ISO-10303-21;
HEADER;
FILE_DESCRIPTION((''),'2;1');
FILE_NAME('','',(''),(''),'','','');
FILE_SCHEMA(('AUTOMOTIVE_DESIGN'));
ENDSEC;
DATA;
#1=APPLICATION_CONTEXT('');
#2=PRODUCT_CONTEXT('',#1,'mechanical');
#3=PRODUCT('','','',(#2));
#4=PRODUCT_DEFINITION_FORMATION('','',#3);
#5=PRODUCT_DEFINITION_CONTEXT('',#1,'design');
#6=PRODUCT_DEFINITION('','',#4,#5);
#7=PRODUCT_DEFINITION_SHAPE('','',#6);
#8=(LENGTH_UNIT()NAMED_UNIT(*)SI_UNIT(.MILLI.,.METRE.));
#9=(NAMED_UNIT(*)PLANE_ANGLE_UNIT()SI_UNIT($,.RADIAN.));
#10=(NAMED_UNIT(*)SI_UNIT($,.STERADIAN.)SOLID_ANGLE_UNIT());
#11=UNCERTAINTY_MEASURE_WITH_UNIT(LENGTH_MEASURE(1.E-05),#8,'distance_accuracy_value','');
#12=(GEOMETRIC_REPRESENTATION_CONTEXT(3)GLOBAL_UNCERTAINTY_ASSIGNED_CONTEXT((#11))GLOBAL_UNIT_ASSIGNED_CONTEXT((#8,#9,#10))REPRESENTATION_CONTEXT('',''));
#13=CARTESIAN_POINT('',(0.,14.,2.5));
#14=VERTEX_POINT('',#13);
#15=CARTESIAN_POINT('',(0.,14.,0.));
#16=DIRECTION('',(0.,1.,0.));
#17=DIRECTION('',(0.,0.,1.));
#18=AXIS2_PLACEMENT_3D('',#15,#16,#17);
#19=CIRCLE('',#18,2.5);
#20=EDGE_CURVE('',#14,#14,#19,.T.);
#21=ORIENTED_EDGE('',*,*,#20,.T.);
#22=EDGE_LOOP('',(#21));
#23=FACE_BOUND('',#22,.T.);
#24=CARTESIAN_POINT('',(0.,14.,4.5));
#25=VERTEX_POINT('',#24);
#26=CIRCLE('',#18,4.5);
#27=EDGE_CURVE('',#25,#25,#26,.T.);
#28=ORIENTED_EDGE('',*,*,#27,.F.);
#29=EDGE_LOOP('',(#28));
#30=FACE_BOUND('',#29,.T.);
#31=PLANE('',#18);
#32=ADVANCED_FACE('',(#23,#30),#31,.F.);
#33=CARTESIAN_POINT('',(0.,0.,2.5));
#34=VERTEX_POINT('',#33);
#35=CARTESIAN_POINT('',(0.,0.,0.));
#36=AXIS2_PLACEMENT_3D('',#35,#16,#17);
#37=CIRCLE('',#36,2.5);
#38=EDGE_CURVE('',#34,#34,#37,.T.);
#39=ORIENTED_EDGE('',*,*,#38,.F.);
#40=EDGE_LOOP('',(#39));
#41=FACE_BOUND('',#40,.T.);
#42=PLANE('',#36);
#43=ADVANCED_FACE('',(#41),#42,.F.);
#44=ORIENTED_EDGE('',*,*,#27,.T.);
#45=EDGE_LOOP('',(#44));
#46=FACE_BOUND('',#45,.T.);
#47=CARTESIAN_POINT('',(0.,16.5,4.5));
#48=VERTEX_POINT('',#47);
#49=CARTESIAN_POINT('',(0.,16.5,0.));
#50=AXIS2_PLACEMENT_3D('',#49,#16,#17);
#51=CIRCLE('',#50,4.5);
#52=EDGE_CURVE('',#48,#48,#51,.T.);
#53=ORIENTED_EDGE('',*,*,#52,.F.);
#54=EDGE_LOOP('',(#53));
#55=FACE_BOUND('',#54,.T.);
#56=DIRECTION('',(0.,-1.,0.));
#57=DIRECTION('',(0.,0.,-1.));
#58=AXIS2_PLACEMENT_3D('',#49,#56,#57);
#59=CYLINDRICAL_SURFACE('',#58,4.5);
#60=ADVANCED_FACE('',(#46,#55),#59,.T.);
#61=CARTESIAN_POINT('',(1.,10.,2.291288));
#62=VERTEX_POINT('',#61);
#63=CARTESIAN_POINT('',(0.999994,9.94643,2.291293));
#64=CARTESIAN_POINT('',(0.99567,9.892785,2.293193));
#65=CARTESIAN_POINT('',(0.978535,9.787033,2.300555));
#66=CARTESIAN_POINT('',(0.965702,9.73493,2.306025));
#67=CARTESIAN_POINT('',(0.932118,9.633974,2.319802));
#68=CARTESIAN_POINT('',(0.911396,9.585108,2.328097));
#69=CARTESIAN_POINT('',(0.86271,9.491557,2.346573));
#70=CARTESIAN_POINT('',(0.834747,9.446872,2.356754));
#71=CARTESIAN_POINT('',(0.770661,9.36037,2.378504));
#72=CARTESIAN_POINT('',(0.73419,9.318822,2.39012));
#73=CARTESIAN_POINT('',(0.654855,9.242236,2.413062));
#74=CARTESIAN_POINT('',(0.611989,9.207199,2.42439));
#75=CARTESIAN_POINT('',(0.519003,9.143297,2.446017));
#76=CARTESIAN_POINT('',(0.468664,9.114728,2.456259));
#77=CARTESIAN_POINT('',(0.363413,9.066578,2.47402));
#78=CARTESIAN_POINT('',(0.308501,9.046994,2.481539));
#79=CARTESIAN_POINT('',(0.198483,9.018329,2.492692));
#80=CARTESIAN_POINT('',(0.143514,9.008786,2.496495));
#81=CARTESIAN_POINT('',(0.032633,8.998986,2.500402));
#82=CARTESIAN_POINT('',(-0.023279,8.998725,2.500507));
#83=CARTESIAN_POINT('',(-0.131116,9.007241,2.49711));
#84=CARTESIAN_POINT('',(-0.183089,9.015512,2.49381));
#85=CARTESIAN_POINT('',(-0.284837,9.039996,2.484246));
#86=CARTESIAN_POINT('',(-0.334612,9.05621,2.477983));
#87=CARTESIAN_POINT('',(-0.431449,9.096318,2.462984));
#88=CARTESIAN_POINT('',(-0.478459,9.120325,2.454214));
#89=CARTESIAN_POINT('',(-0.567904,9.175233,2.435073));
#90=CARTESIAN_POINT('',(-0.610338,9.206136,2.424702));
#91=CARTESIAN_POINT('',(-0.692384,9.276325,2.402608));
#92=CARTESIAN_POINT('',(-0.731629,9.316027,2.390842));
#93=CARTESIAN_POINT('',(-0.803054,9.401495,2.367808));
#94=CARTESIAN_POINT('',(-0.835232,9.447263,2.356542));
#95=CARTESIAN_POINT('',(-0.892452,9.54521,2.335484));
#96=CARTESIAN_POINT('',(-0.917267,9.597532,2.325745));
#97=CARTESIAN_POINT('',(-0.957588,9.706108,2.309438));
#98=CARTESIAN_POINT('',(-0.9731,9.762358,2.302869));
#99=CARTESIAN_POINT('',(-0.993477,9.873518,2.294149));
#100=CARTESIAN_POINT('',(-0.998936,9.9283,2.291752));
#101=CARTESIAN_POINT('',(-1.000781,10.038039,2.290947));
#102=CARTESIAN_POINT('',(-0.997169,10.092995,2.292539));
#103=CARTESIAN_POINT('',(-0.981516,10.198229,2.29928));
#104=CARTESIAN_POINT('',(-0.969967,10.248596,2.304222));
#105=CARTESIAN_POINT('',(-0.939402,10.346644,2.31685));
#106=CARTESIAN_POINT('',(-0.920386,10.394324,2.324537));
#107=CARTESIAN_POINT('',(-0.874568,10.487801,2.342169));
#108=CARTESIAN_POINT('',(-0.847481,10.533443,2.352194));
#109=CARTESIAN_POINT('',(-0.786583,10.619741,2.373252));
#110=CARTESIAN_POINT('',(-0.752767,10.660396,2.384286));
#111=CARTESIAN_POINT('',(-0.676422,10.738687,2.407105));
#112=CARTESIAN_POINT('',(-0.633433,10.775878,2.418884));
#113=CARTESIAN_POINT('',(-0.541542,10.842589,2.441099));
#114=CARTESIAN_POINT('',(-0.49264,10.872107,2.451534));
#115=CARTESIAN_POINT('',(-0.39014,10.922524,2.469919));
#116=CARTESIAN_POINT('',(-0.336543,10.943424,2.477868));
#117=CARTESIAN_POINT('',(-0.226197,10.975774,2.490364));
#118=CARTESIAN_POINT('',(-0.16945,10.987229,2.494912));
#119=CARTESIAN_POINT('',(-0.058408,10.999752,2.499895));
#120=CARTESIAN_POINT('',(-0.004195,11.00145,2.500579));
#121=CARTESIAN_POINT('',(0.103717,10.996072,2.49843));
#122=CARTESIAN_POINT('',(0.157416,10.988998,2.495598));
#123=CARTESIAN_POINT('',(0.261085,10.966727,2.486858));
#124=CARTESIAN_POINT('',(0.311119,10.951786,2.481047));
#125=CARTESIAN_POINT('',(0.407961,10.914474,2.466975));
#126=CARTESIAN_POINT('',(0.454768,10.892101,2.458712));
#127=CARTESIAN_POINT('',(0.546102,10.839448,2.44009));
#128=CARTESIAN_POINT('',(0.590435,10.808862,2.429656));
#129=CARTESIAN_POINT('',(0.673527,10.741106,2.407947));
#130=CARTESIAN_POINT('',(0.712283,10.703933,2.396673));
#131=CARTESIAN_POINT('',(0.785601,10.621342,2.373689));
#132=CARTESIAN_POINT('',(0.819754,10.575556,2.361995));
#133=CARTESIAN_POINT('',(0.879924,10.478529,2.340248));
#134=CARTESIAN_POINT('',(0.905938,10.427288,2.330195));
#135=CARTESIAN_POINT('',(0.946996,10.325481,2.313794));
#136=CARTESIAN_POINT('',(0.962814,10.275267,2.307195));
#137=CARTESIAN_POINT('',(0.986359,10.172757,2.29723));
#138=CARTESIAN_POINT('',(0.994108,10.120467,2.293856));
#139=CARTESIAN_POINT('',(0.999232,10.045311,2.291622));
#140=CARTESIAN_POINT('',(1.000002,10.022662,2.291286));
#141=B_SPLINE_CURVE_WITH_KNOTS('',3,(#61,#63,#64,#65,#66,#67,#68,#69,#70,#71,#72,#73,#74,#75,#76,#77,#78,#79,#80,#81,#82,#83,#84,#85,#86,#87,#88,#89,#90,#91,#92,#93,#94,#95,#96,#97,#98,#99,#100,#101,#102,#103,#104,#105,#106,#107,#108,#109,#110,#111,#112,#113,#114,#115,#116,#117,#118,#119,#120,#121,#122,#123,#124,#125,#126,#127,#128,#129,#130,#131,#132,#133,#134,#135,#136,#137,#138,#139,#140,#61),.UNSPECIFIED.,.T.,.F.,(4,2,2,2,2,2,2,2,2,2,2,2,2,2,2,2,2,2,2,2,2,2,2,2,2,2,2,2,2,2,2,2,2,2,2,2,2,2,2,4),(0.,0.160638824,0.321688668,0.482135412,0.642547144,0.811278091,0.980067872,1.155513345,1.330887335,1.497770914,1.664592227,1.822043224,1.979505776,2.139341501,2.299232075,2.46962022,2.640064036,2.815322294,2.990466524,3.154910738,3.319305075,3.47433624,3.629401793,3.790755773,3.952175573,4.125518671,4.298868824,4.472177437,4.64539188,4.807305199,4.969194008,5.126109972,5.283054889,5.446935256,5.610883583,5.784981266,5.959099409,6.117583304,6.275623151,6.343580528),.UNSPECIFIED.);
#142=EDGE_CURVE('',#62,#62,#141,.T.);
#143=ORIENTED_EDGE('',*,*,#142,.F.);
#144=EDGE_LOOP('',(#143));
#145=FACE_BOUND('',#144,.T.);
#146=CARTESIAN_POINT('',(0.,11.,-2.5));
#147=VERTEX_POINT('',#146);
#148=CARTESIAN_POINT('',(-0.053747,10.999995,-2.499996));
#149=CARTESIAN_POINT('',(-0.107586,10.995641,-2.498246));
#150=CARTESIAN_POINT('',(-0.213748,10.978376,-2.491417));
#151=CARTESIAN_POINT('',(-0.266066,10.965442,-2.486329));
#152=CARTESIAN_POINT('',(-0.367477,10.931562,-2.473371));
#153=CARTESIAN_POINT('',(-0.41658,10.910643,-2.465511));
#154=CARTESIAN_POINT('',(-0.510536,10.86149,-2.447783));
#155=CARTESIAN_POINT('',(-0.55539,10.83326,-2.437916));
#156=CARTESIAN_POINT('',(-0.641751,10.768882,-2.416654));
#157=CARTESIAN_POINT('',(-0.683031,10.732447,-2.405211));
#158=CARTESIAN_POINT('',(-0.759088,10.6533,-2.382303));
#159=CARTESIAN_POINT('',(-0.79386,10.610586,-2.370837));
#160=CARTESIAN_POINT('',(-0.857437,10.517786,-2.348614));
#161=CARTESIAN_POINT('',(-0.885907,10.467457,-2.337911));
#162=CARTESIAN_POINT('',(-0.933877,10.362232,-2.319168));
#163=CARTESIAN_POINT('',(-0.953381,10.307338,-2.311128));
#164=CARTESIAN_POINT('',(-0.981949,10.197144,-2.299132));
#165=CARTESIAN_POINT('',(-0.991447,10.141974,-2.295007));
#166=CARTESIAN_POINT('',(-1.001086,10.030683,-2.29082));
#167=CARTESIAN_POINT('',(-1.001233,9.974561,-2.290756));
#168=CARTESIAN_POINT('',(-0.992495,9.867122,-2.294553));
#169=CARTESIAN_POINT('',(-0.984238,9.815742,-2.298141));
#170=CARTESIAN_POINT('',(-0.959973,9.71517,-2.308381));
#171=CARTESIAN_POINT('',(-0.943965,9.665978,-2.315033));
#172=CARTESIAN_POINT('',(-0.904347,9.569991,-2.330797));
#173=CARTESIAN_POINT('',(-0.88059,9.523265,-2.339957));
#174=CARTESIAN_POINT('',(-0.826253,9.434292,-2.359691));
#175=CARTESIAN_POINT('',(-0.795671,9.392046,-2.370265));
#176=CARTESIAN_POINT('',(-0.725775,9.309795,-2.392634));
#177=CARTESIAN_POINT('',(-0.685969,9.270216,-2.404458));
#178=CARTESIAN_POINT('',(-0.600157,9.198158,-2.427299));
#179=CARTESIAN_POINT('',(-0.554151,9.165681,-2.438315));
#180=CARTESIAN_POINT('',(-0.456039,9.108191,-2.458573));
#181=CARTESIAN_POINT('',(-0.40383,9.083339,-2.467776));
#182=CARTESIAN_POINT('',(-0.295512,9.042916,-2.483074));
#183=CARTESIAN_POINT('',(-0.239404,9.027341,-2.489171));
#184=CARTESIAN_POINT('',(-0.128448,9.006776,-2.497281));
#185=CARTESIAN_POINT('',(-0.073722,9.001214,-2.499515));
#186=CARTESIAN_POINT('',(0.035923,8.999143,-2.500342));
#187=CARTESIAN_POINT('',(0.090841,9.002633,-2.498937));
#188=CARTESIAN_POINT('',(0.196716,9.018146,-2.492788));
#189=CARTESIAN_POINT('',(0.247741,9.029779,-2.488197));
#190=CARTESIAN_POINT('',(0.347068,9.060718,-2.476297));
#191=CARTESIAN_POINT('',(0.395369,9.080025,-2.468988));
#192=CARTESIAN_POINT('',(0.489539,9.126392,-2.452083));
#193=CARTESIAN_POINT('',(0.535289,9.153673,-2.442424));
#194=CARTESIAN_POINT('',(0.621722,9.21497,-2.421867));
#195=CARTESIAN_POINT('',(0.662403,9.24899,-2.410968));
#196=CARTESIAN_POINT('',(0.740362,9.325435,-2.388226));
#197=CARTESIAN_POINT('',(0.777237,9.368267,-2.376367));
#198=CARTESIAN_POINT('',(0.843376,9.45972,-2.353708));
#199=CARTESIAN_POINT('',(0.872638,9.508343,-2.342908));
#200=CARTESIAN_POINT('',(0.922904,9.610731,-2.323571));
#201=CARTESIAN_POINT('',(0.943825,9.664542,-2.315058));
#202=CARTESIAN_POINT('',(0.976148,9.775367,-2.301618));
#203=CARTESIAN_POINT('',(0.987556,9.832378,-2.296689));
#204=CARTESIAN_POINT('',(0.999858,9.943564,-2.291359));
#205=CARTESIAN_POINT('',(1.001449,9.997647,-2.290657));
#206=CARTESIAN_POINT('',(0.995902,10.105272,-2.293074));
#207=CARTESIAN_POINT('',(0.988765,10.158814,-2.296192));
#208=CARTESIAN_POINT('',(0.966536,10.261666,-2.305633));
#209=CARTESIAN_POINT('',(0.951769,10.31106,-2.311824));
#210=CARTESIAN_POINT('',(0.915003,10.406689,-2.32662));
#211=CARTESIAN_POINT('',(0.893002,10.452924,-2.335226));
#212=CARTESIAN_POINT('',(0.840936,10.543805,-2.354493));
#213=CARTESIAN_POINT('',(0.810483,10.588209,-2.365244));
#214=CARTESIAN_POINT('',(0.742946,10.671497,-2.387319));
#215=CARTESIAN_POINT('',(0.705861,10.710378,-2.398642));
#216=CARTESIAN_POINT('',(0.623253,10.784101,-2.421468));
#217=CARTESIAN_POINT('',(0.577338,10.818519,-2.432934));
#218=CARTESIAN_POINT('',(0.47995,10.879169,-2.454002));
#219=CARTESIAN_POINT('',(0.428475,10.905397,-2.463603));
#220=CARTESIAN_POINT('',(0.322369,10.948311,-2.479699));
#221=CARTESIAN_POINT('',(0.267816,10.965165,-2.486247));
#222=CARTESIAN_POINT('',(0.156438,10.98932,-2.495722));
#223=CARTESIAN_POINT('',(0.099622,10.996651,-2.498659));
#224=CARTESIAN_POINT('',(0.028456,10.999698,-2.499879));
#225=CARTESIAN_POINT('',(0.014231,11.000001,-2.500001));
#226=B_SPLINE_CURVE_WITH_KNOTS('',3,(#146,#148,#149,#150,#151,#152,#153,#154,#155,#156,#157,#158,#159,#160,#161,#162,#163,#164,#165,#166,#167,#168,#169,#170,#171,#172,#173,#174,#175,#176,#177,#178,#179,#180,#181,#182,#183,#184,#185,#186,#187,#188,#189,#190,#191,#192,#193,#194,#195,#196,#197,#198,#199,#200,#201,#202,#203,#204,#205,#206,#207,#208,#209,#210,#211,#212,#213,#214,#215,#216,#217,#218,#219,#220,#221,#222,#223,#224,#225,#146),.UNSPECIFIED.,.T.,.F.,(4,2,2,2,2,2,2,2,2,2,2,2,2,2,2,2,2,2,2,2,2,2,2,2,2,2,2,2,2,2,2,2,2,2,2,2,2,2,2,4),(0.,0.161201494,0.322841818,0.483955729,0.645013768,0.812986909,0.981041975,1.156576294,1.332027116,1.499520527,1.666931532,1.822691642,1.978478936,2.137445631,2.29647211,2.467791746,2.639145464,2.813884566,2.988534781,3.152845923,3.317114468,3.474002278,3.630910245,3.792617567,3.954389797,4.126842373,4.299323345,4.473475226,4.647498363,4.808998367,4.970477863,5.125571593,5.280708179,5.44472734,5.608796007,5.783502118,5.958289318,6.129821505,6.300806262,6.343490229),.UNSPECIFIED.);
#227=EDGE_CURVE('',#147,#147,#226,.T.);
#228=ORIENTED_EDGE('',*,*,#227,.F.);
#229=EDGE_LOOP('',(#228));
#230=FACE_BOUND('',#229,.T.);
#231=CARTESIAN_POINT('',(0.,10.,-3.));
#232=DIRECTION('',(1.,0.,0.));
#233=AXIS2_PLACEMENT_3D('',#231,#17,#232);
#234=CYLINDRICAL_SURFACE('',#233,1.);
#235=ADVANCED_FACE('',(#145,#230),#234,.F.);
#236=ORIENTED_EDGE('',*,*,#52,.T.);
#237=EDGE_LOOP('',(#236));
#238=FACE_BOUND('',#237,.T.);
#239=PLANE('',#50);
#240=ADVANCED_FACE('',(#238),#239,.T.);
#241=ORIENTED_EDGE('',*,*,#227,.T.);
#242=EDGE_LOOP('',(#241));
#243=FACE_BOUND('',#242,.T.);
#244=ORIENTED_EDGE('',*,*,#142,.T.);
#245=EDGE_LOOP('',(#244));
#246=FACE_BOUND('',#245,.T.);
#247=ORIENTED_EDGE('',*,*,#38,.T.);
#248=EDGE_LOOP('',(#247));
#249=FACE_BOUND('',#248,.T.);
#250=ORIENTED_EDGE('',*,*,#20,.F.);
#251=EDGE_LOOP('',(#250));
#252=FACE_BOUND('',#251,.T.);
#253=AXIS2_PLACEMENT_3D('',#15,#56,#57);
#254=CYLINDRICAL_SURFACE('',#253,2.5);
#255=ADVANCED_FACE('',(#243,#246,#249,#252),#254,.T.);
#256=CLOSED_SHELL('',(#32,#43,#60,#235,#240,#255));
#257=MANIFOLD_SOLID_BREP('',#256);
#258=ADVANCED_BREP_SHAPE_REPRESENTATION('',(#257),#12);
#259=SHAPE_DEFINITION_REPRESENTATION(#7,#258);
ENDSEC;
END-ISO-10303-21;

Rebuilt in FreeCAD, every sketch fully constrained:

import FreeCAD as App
import Part
import Sketcher

V = App.Vector
Q = App.Units.Quantity

doc = App.newDocument("Part")
params = doc.addObject("Spreadsheet::Sheet", "Params")
for row, (alias, value) in enumerate([
    ("sketch1_diameter", "5 mm"),
    ("pad1_length", "14 mm"),
    ("sketch2_diameter", "9 mm"),
    ("pad2_length", "2.5 mm"),
    ("sketch3_diameter", "2 mm"),
    ("pocket1_length", "6 mm"),
], start=1):
    params.set(f"A{row}", alias)
    params.set(f"B{row}", "=" + value)
    params.setAlias(f"B{row}", alias)

body = doc.addObject("PartDesign::Body", "Body")

# Sketch on XZ plane
sketch1 = body.newObject("Sketcher::SketchObject", "Sketch")
sketch1.AttachmentSupport = (doc.getObject("XZ_Plane"), [""])
sketch1.MapMode = "FlatFace"
sketch1.addGeometry(Part.Circle(V(0, 0, 0), V(0, 0, 1), 2.5), False)
sketch1.addConstraint(Sketcher.Constraint("Coincident", 0, 3, -1, 1))
sketch1.addConstraint(Sketcher.Constraint("Diameter", 0, Q("5 mm")))
sketch1.setExpression("Constraints[1]", "Params.sketch1_diameter")
pad1 = body.newObject("PartDesign::Pad", "Pad")
pad1.Profile = sketch1
pad1.setExpression("Length", "Params.pad1_length")
pad1.Reversed = True

# Sketch on XZ plane
sketch2 = body.newObject("Sketcher::SketchObject", "Sketch001")
sketch2.AttachmentSupport = (doc.getObject("XZ_Plane"), [""])
sketch2.MapMode = "FlatFace"
sketch2.AttachmentOffset = App.Placement(V(0, 0, -14), App.Rotation())
sketch2.addGeometry(Part.Circle(V(0, 0, 0), V(0, 0, 1), 4.5), False)
sketch2.addConstraint(Sketcher.Constraint("Coincident", 0, 3, -1, 1))
sketch2.addConstraint(Sketcher.Constraint("Diameter", 0, Q("9 mm")))
sketch2.setExpression("Constraints[1]", "Params.sketch2_diameter")
pad2 = body.newObject("PartDesign::Pad", "Pad001")
pad2.Profile = sketch2
pad2.setExpression("Length", "Params.pad2_length")
pad2.Reversed = True

# Sketch on XY plane
sketch3 = body.newObject("Sketcher::SketchObject", "Sketch002")
sketch3.AttachmentSupport = (doc.getObject("XY_Plane"), [""])
sketch3.MapMode = "FlatFace"
sketch3.addGeometry(Part.Circle(V(0, 10, 0), V(0, 0, 1), 1), False)
sketch3.addConstraint(Sketcher.Constraint("PointOnObject", 0, 3, -2))
sketch3.addConstraint(Sketcher.Constraint("Diameter", 0, Q("2 mm")))
sketch3.addConstraint(Sketcher.Constraint("DistanceY", -1, 1, 0, 3, Q("10 mm")))
sketch3.setExpression("Constraints[1]", "Params.sketch3_diameter")
pocket1 = body.newObject("PartDesign::Pocket", "Pocket")
pocket1.Profile = sketch3
pocket1.setExpression("Length", "Params.pocket1_length")
pocket1.Midplane = True

doc.recompute()
